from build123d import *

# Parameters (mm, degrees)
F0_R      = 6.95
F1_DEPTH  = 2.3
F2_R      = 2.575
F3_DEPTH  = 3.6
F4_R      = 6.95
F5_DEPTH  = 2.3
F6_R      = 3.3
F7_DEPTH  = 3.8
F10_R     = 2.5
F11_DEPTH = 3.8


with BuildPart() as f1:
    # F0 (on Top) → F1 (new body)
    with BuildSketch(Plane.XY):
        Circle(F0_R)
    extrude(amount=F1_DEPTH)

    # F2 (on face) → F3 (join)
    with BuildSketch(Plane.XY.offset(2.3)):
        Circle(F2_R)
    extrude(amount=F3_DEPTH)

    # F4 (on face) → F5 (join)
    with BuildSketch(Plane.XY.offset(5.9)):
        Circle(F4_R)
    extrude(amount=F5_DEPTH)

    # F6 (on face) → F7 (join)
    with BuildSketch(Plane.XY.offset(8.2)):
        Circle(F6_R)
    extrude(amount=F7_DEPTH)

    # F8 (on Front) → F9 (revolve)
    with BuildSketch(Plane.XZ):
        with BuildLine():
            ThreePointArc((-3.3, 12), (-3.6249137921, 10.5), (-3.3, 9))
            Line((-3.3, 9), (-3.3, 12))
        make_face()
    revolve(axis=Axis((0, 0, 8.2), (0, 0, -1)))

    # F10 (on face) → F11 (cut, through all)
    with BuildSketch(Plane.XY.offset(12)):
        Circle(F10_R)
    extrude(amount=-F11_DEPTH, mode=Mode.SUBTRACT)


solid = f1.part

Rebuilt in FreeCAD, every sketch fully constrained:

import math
import FreeCAD as App
import Part
import Sketcher
from FreeCAD import Vector
Q = App.Units.Quantity

doc = App.newDocument("Part")
body = doc.addObject("PartDesign::Body", "Body")

# Sketch on XY plane
sketch1 = doc.addObject("Sketcher::SketchObject", "Sketch")
body.addObject(sketch1)
sketch1.AttachmentSupport = (doc.XY_Plane, [""])
sketch1.MapMode = "FlatFace"
sketch1.addGeometry(Part.Circle(Vector(0, 0, 0), Vector(0, 0, 1), 7), False)
sketch1.addConstraint([
    Sketcher.Constraint("Coincident", 0, 3, -1, 1),
    Sketcher.Constraint("Diameter", 0, Q("13.9 mm")),
])
pad1 = doc.addObject("PartDesign::Pad", "Pad")
body.addObject(pad1)
pad1.Profile = sketch1
pad1.Length = 2.3

# Sketch on XY plane
sketch2 = doc.addObject("Sketcher::SketchObject", "Sketch001")
body.addObject(sketch2)
sketch2.AttachmentSupport = (doc.XY_Plane, [""])
sketch2.MapMode = "FlatFace"
sketch2.AttachmentOffset = App.Placement(Vector(0, 0, 2.3), App.Rotation())
sketch2.addGeometry(Part.Circle(Vector(0, 0, 0), Vector(0, 0, 1), 2.6), False)
sketch2.addConstraint([
    Sketcher.Constraint("Coincident", 0, 3, -1, 1),
    Sketcher.Constraint("Diameter", 0, Q("5.15 mm")),
])
pad2 = doc.addObject("PartDesign::Pad", "Pad001")
body.addObject(pad2)
pad2.Profile = sketch2
pad2.Length = 3.6

# Sketch on XY plane
sketch3 = doc.addObject("Sketcher::SketchObject", "Sketch002")
body.addObject(sketch3)
sketch3.AttachmentSupport = (doc.XY_Plane, [""])
sketch3.MapMode = "FlatFace"
sketch3.AttachmentOffset = App.Placement(Vector(0, 0, 5.9), App.Rotation())
sketch3.addGeometry(Part.Circle(Vector(0, 0, 0), Vector(0, 0, 1), 7), False)
sketch3.addConstraint([
    Sketcher.Constraint("Coincident", 0, 3, -1, 1),
    Sketcher.Constraint("Diameter", 0, Q("13.9 mm")),
])
pad3 = doc.addObject("PartDesign::Pad", "Pad002")
body.addObject(pad3)
pad3.Profile = sketch3
pad3.Length = 2.3

# Sketch on XY plane
sketch4 = doc.addObject("Sketcher::SketchObject", "Sketch003")
body.addObject(sketch4)
sketch4.AttachmentSupport = (doc.XY_Plane, [""])
sketch4.MapMode = "FlatFace"
sketch4.AttachmentOffset = App.Placement(Vector(0, 0, 8.2), App.Rotation())
sketch4.addGeometry(Part.Circle(Vector(0, 0, 0), Vector(0, 0, 1), 3.3), False)
sketch4.addConstraint([
    Sketcher.Constraint("Coincident", 0, 3, -1, 1),
    Sketcher.Constraint("Diameter", 0, Q("6.6 mm")),
])
pad4 = doc.addObject("PartDesign::Pad", "Pad003")
body.addObject(pad4)
pad4.Profile = sketch4
pad4.Length = 3.8

# Sketch on XZ plane
sketch5 = doc.addObject("Sketcher::SketchObject", "Sketch004")
body.addObject(sketch5)
sketch5.AttachmentSupport = (doc.XZ_Plane, [""])
sketch5.MapMode = "FlatFace"
sketch5.addGeometry([
    Part.ArcOfCircle(Part.Circle(Vector(0, 10.5, 0), Vector(0, 0, 1), 3.6), math.radians(156), math.radians(204)),
    Part.LineSegment(Vector(-3.3, 9, 0), Vector(-3.3, 12, 0)),
], False)
sketch5.addConstraint([
    Sketcher.Constraint("Coincident", 0, 1, 1, 2),
    Sketcher.Constraint("Coincident", 1, 1, 0, 2),
    Sketcher.Constraint("Vertical", 1),
    Sketcher.Constraint("PointOnObject", 0, 3, -2),
    Sketcher.Constraint("DistanceY", 1, 1, 1, 2, Q("3 mm")),
    Sketcher.Constraint("DistanceY", -1, 1, 0, 1, Q("12 mm")),
    Sketcher.Constraint("DistanceX", 0, 1, -1, 1, Q("3.3 mm")),
])
revolution = doc.addObject("PartDesign::Revolution", "Revolution")
body.addObject(revolution)
revolution.Profile = sketch5
revolution.ReferenceAxis = (sketch5, ["V_Axis"])
revolution.Angle = 360

# Sketch on XY plane
sketch6 = doc.addObject("Sketcher::SketchObject", "Sketch005")
body.addObject(sketch6)
sketch6.AttachmentSupport = (doc.XY_Plane, [""])
sketch6.MapMode = "FlatFace"
sketch6.AttachmentOffset = App.Placement(Vector(0, 0, 12), App.Rotation())
sketch6.addGeometry(Part.Circle(Vector(0, 0, 0), Vector(0, 0, 1), 2.5), False)
sketch6.addConstraint([
    Sketcher.Constraint("Coincident", 0, 3, -1, 1),
    Sketcher.Constraint("Diameter", 0, Q("5 mm")),
])
pocket1 = doc.addObject("PartDesign::Pocket", "Pocket")
body.addObject(pocket1)
pocket1.Profile = sketch6
pocket1.Length = 3.8

doc.recompute()
